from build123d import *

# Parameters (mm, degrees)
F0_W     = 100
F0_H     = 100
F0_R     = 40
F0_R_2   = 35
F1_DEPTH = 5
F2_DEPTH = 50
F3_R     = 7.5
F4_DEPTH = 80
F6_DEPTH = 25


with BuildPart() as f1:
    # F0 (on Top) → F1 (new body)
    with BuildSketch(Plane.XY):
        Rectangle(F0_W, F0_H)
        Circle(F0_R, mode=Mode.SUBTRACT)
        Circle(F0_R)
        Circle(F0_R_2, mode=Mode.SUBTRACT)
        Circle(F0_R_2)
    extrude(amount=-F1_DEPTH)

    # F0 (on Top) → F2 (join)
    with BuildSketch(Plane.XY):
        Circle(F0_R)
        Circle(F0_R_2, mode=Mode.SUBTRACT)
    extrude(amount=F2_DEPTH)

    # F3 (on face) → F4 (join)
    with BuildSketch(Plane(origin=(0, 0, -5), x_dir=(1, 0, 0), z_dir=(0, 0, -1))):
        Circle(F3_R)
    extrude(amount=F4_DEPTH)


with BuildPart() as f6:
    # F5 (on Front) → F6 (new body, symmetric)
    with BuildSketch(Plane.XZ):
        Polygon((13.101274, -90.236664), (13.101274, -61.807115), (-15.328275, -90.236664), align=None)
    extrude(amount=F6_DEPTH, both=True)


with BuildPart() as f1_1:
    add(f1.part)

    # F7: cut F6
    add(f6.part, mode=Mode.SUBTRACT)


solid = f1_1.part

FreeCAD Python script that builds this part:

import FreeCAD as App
import Part
import Sketcher
from FreeCAD import Vector

doc = App.newDocument("Part")
params = doc.addObject("Spreadsheet::Sheet", "Params")
for row, (alias, value) in enumerate([
    ("sketch1_width", "100 mm"),
    ("pad1_length", "5 mm"),
    ("sketch2_diameter", "80 mm"),
    ("sketch2_diameter2", "70 mm"),
    ("pad2_length", "50 mm"),
    ("sketch3_diameter", "15 mm"),
    ("pad3_length", "80 mm"),
    ("pad4_length", "50 mm"),
], start=1):
    params.set(f"A{row}", alias)
    params.set(f"B{row}", "=" + value)
    params.setAlias(f"B{row}", alias)

body = doc.addObject("PartDesign::Body", "Body")

sketch1 = body.newObject("Sketcher::SketchObject", "Sketch")
sketch1.AttachmentSupport = (doc.getObject("XY_Plane"), [""])
sketch1.MapMode = "FlatFace"
sketch1.addGeometry([
    Part.LineSegment(Vector(-50, 50, 0), Vector(-50, -50, 0)),
    Part.LineSegment(Vector(-50, -50, 0), Vector(50, -50, 0)),
    Part.LineSegment(Vector(50, -50, 0), Vector(50, 50, 0)),
    Part.LineSegment(Vector(50, 50, 0), Vector(-50, 50, 0)),
], False)
sketch1.addConstraint([
    Sketcher.Constraint("Coincident", 0, 2, 1, 1),
    Sketcher.Constraint("Coincident", 1, 2, 2, 1),
    Sketcher.Constraint("Coincident", 2, 2, 3, 1),
    Sketcher.Constraint("Coincident", 3, 2, 0, 1),
    Sketcher.Constraint("Vertical", 0),
    Sketcher.Constraint("Horizontal", 1),
    Sketcher.Constraint("Vertical", 2),
    Sketcher.Constraint("Horizontal", 3),
    Sketcher.Constraint("Symmetric", 0, 2, 2, 2, -1, 1),
    Sketcher.Constraint("Equal", 3, 0),
    Sketcher.Constraint("DistanceX", 1, 1, 1, 2, 100.0),
])
sketch1.setExpression("Constraints[10]", "Params.sketch1_width")
pad1 = body.newObject("PartDesign::Pad", "Pad")
pad1.Profile = sketch1
pad1.setExpression("Length", "Params.pad1_length")
pad1.Reversed = True

sketch2 = body.newObject("Sketcher::SketchObject", "Sketch001")
sketch2.AttachmentSupport = (doc.getObject("XY_Plane"), [""])
sketch2.MapMode = "FlatFace"
sketch2.addGeometry([
    Part.Circle(Vector(0, 0, 0), Vector(0, 0, 1), 40),
    Part.Circle(Vector(0, 0, 0), Vector(0, 0, 1), 35),
], False)
sketch2.addConstraint([
    Sketcher.Constraint("Coincident", 0, 3, -1, 1),
    Sketcher.Constraint("Coincident", 1, 3, -1, 1),
    Sketcher.Constraint("Diameter", 0, 80.0),
    Sketcher.Constraint("Diameter", 1, 70.0),
])
sketch2.setExpression("Constraints[2]", "Params.sketch2_diameter")
sketch2.setExpression("Constraints[3]", "Params.sketch2_diameter2")
pad2 = body.newObject("PartDesign::Pad", "Pad001")
pad2.Profile = sketch2
pad2.setExpression("Length", "Params.pad2_length")

sketch3 = body.newObject("Sketcher::SketchObject", "Sketch002")
sketch3.AttachmentSupport = (doc.getObject("XY_Plane"), [""])
sketch3.MapMode = "FlatFace"
sketch3.AttachmentOffset = App.Placement(Vector(0, 0, -5), App.Rotation())
sketch3.addGeometry(Part.Circle(Vector(0, 0, 0), Vector(0, 0, 1), 8), False)
sketch3.addConstraint([
    Sketcher.Constraint("Coincident", 0, 3, -1, 1),
    Sketcher.Constraint("Diameter", 0, 15.0),
])
sketch3.setExpression("Constraints[1]", "Params.sketch3_diameter")
pad3 = body.newObject("PartDesign::Pad", "Pad002")
pad3.Profile = sketch3
pad3.setExpression("Length", "Params.pad3_length")
pad3.Reversed = True
body2 = doc.addObject("PartDesign::Body", "Body001")

sketch4 = body2.newObject("Sketcher::SketchObject", "Sketch003")
sketch4.AttachmentSupport = (doc.getObject("XZ_Plane001"), [""])
sketch4.MapMode = "FlatFace"
sketch4.addGeometry([
    Part.LineSegment(Vector(13, -90, 0), Vector(13, -62, 0)),
    Part.LineSegment(Vector(13, -62, 0), Vector(-15, -90, 0)),
    Part.LineSegment(Vector(-15, -90, 0), Vector(13, -90, 0)),
], False)
sketch4.addConstraint([
    Sketcher.Constraint("Coincident", 0, 2, 1, 1),
    Sketcher.Constraint("Coincident", 1, 2, 2, 1),
    Sketcher.Constraint("Coincident", 2, 2, 0, 1),
    Sketcher.Constraint("Vertical", 0),
    Sketcher.Constraint("Horizontal", 2),
    Sketcher.Constraint("Equal", 2, 0),
    Sketcher.Constraint("DistanceX", 2, 1, 2, 2, 28.429549),
    Sketcher.Constraint("DistanceX", -1, 1, 0, 2, 13.101274),
    Sketcher.Constraint("DistanceY", 0, 2, -1, 1, 61.807115),
])
pad4 = body2.newObject("PartDesign::Pad", "Pad003")
pad4.Profile = sketch4
pad4.setExpression("Length", "Params.pad4_length")
pad4.Midplane = True
doc.recompute()

boolean = body.newObject("PartDesign::Boolean", "Boolean")
boolean.Type = "Cut"
boolean.addObjects([body2])

doc.recompute()
